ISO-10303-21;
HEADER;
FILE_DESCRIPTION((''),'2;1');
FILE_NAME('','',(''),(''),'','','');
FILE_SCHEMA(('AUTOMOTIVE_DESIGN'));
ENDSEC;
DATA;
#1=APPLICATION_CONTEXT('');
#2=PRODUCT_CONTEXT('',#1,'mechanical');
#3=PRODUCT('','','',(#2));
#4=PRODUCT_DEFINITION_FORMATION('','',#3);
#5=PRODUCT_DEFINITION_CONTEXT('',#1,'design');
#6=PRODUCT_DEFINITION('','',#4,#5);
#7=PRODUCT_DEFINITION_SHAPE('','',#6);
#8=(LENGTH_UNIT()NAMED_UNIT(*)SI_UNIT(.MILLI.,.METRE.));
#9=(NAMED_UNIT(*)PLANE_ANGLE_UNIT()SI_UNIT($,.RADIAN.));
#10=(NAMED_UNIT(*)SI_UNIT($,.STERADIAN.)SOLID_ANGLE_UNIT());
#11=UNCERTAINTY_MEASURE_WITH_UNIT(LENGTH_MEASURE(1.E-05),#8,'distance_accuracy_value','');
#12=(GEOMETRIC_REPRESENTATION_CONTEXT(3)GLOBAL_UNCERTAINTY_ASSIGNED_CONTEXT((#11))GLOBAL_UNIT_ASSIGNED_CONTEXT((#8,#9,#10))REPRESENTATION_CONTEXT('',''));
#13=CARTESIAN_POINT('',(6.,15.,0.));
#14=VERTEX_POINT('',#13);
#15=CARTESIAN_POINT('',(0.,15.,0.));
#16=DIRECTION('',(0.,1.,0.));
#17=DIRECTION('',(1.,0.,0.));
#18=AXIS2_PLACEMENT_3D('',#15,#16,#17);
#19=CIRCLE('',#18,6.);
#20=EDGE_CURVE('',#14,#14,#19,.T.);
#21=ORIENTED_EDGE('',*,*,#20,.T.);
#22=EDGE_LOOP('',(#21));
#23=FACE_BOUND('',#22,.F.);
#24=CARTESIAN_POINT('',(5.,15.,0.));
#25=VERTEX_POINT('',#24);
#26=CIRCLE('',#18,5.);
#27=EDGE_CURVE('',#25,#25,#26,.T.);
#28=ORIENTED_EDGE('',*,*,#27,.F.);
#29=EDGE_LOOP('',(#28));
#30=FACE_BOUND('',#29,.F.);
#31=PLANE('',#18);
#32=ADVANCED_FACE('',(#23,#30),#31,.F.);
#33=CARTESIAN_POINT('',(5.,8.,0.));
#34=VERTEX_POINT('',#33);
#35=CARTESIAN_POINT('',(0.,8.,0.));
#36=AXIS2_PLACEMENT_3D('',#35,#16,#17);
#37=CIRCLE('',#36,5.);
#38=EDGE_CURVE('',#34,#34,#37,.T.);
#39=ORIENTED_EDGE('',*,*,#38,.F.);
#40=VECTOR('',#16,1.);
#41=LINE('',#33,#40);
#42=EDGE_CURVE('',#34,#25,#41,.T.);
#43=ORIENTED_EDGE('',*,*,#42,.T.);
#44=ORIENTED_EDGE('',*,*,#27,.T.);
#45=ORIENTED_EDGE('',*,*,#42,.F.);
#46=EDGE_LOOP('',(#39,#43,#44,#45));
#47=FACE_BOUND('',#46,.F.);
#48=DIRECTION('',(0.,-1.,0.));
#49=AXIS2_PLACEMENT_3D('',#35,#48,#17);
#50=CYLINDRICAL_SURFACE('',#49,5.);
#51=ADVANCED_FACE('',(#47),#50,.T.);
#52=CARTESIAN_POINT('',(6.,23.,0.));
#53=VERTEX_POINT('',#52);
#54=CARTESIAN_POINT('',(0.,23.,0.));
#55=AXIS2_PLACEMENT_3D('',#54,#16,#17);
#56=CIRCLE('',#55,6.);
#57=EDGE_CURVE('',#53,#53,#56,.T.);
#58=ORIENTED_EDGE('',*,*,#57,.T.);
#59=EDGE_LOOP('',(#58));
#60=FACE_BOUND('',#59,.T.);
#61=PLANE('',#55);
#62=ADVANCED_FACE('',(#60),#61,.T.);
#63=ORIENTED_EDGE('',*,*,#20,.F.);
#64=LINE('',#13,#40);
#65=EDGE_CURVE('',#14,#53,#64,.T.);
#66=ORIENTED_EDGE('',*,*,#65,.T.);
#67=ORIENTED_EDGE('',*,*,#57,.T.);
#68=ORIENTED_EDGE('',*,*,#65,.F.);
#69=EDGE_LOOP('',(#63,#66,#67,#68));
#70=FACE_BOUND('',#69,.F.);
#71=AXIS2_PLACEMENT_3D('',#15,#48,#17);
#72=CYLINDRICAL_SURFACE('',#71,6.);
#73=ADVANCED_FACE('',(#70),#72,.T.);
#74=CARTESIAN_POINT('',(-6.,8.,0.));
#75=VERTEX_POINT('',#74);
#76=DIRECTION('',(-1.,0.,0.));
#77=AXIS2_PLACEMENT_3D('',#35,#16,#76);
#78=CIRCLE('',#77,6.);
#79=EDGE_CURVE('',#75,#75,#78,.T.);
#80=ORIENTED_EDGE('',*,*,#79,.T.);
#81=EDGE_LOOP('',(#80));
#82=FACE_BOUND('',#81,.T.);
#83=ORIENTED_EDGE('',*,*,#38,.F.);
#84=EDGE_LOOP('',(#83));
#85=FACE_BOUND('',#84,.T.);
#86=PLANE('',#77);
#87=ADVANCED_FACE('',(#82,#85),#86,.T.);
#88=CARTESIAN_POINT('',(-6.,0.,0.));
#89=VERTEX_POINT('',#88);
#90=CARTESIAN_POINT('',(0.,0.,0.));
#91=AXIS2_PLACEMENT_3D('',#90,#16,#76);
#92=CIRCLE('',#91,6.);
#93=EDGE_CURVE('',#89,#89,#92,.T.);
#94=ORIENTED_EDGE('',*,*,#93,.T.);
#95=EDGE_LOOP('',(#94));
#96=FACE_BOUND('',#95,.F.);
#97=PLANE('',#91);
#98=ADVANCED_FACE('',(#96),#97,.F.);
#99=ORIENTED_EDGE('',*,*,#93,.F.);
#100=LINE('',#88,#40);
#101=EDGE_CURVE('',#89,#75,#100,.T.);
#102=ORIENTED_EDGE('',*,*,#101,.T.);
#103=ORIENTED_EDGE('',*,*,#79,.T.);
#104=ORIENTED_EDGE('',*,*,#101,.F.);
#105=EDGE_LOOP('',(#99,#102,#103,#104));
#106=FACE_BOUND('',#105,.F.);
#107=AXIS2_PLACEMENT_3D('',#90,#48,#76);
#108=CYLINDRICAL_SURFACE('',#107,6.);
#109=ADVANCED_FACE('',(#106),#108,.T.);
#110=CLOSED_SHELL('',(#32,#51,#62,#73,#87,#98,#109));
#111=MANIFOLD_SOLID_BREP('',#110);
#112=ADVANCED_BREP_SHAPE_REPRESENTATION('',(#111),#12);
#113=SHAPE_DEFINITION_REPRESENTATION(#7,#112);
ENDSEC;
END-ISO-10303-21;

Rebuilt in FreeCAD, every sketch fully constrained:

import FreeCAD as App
import Part
import Sketcher

V = App.Vector
Q = App.Units.Quantity

doc = App.newDocument("Part")
body = doc.addObject("PartDesign::Body", "Body")

# Sketch on XZ plane
sketch1 = body.newObject("Sketcher::SketchObject", "Sketch")
sketch1.AttachmentSupport = (doc.getObject("XZ_Plane"), [""])
sketch1.MapMode = "FlatFace"
sketch1.addGeometry(Part.Circle(V(0, 0, 0), V(0, 0, 1), 6), False)
sketch1.addConstraint(Sketcher.Constraint("Coincident", 0, 3, -1, 1))
sketch1.addConstraint(Sketcher.Constraint("Diameter", 0, Q("12 mm")))
pad1 = body.newObject("PartDesign::Pad", "Pad")
pad1.Profile = sketch1
pad1.Length = 8
pad1.Reversed = True

# Sketch on XZ plane
sketch2 = body.newObject("Sketcher::SketchObject", "Sketch001")
sketch2.AttachmentSupport = (doc.getObject("XZ_Plane"), [""])
sketch2.MapMode = "FlatFace"
sketch2.AttachmentOffset = App.Placement(V(0, 0, -8), App.Rotation())
sketch2.addGeometry(Part.Circle(V(0, 0, 0), V(0, 0, 1), 5), False)
sketch2.addConstraint(Sketcher.Constraint("Coincident", 0, 3, -1, 1))
sketch2.addConstraint(Sketcher.Constraint("Diameter", 0, Q("10 mm")))
pad2 = body.newObject("PartDesign::Pad", "Pad001")
pad2.Profile = sketch2
pad2.Length = 7
pad2.Reversed = True

# Sketch on XZ plane
sketch3 = body.newObject("Sketcher::SketchObject", "Sketch002")
sketch3.AttachmentSupport = (doc.getObject("XZ_Plane"), [""])
sketch3.MapMode = "FlatFace"
sketch3.AttachmentOffset = App.Placement(V(0, 0, -15), App.Rotation())
sketch3.addGeometry(Part.Circle(V(0, 0, 0), V(0, 0, 1), 6), False)
sketch3.addConstraint(Sketcher.Constraint("Coincident", 0, 3, -1, 1))
sketch3.addConstraint(Sketcher.Constraint("Diameter", 0, Q("12 mm")))
pad3 = body.newObject("PartDesign::Pad", "Pad002")
pad3.Profile = sketch3
pad3.Length = 8
pad3.Reversed = True

doc.recompute()
